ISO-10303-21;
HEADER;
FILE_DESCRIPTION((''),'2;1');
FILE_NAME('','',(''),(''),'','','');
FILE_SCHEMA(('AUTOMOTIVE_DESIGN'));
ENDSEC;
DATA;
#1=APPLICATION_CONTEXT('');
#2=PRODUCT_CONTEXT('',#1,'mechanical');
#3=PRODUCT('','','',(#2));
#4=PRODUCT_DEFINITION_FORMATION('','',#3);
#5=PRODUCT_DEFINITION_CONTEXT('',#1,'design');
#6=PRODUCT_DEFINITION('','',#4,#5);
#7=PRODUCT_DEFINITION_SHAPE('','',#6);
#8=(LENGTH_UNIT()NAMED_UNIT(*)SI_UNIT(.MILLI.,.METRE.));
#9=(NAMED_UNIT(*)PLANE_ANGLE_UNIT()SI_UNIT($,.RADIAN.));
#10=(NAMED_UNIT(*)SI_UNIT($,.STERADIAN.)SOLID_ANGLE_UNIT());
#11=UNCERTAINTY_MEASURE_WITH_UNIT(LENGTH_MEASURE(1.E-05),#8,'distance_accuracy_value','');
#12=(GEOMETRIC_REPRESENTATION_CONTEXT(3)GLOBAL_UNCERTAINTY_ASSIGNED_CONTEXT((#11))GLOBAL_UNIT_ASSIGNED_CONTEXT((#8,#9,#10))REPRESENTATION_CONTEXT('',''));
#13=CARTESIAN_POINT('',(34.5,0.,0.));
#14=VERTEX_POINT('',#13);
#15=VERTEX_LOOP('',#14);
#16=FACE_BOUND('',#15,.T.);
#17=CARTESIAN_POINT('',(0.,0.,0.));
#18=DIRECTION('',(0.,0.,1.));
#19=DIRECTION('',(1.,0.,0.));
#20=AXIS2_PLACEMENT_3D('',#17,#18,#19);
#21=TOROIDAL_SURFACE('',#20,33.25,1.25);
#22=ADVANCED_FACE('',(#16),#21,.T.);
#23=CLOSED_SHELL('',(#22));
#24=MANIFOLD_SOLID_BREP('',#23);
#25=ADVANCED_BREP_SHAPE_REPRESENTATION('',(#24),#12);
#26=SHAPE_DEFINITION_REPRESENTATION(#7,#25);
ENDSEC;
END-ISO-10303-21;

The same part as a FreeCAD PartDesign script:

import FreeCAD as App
import Part
import Sketcher
from FreeCAD import Vector
Q = App.Units.Quantity

doc = App.newDocument("Part")
body = doc.addObject("PartDesign::Body", "Body")

# Sketch on YZ plane
sketch1 = body.newObject("Sketcher::SketchObject", "Sketch")
sketch1.AttachmentSupport = (doc.getObject("YZ_Plane"), [""])
sketch1.MapMode = "FlatFace"
sketch1.addGeometry(Part.Circle(Vector(-33.2, 0, 0), Vector(0, 0, 1), 1.2), False)
sketch1.addConstraint(Sketcher.Constraint("PointOnObject", 0, 3, -1))
sketch1.addConstraint(Sketcher.Constraint("Diameter", 0, Q("2.5 mm")))
sketch1.addConstraint(Sketcher.Constraint("DistanceX", 0, 3, -1, 1, Q("33.25 mm")))
revolution = body.newObject("PartDesign::Revolution", "Revolution")
revolution.Profile = sketch1
revolution.ReferenceAxis = (sketch1, ["V_Axis"])
revolution.Angle = 360

doc.recompute()
